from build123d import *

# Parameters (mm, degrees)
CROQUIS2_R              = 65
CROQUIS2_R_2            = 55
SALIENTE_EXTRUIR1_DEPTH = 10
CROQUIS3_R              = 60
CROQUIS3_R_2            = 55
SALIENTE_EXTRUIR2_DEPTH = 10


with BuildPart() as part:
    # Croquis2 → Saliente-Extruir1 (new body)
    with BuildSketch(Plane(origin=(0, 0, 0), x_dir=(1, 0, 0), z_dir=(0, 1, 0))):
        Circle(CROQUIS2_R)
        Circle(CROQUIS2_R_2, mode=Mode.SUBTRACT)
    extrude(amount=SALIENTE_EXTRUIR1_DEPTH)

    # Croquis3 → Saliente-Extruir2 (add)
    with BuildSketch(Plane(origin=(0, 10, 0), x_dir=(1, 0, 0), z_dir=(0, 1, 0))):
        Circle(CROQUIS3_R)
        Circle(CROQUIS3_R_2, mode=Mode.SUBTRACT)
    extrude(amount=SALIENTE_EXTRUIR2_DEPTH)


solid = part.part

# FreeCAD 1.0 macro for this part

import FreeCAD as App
import Part
import Sketcher
Q = App.Units.Quantity

doc = App.newDocument("Part")
body = doc.addObject("PartDesign::Body", "Body")

# Sketch on XZ plane
sketch1 = body.newObject("Sketcher::SketchObject", "Sketch")
sketch1.AttachmentSupport = (doc.getObject("XZ_Plane"), [""])
sketch1.MapMode = "FlatFace"
sketch1.addGeometry([
    Part.Circle(App.Vector(0, 0, 0), App.Vector(0, 0, 1), 65),
    Part.Circle(App.Vector(0, 0, 0), App.Vector(0, 0, 1), 55),
], False)
sketch1.addConstraint([
    Sketcher.Constraint("Coincident", 0, 3, -1, 1),
    Sketcher.Constraint("Coincident", 1, 3, -1, 1),
    Sketcher.Constraint("Diameter", 0, Q("130 mm")),
    Sketcher.Constraint("Diameter", 1, Q("110 mm")),
])
pad1 = body.newObject("PartDesign::Pad", "Pad")
pad1.Profile = sketch1
pad1.Length = 10
pad1.Reversed = True

# Sketch on XZ plane
sketch2 = body.newObject("Sketcher::SketchObject", "Sketch001")
sketch2.AttachmentSupport = (doc.getObject("XZ_Plane"), [""])
sketch2.MapMode = "FlatFace"
sketch2.AttachmentOffset = App.Placement(App.Vector(0, 0, -10), App.Rotation())
sketch2.addGeometry([
    Part.Circle(App.Vector(0, 0, 0), App.Vector(0, 0, 1), 60),
    Part.Circle(App.Vector(0, 0, 0), App.Vector(0, 0, 1), 55),
], False)
sketch2.addConstraint([
    Sketcher.Constraint("Coincident", 0, 3, -1, 1),
    Sketcher.Constraint("Coincident", 1, 3, -1, 1),
    Sketcher.Constraint("Diameter", 0, Q("120 mm")),
    Sketcher.Constraint("Diameter", 1, Q("110 mm")),
])
pad2 = body.newObject("PartDesign::Pad", "Pad001")
pad2.Profile = sketch2
pad2.Length = 10
pad2.Reversed = True

doc.recompute()
